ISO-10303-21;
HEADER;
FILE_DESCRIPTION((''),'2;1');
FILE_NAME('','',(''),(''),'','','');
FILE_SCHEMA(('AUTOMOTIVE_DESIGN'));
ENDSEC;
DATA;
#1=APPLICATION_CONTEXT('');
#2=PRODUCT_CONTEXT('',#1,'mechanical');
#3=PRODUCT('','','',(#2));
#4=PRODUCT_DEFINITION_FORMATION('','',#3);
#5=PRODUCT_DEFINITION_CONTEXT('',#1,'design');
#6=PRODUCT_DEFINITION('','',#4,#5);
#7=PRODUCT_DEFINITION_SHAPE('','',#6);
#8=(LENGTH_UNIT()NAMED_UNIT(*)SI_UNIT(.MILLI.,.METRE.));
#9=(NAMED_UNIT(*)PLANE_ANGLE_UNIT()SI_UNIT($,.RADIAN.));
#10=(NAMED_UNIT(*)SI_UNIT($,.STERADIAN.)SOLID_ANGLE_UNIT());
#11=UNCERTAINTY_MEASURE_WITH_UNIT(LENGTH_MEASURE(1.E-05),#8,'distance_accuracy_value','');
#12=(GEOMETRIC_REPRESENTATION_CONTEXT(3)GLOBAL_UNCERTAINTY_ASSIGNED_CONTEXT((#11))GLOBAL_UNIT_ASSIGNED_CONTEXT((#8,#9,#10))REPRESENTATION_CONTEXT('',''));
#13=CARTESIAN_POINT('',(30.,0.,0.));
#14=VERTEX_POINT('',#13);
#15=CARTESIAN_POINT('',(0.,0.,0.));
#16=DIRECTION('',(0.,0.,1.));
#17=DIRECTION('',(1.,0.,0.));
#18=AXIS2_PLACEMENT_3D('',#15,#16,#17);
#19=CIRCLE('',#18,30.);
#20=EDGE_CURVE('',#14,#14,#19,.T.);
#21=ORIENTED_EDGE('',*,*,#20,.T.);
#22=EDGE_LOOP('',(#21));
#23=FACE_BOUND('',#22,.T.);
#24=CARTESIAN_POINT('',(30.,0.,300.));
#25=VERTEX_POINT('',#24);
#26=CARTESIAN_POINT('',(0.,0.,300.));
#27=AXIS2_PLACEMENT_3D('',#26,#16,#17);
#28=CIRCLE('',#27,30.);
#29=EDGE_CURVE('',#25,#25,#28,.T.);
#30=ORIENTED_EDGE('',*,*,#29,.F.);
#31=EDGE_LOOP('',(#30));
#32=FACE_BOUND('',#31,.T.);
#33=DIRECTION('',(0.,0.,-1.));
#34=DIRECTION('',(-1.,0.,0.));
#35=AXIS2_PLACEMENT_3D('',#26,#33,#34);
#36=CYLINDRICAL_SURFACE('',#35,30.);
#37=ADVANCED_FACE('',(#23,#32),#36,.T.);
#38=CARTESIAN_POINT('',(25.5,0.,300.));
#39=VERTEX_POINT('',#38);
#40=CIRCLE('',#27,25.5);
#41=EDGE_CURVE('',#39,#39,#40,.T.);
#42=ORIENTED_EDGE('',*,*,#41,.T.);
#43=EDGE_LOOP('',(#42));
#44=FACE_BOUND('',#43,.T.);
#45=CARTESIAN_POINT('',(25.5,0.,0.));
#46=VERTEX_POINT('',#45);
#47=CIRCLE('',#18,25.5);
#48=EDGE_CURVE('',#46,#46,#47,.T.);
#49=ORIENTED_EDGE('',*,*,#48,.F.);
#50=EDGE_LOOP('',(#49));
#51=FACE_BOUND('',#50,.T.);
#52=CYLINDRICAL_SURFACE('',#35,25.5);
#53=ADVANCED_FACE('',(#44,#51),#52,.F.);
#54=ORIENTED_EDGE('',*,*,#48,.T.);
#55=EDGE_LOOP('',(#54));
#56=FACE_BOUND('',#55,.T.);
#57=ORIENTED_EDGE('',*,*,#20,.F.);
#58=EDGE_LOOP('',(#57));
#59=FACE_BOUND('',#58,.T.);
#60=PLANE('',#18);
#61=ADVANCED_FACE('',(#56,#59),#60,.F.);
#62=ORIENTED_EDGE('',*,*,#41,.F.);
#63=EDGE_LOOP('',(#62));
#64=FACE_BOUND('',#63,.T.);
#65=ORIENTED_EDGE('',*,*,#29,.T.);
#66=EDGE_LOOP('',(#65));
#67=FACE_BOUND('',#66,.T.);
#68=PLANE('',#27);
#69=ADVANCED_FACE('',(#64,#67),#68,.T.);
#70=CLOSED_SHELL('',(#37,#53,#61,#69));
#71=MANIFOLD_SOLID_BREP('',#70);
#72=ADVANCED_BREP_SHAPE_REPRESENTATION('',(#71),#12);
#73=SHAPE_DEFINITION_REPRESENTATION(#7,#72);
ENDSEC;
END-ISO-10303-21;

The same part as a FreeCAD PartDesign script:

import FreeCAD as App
import Part
import Sketcher

doc = App.newDocument("Part")
body = doc.addObject("PartDesign::Body", "Body")

# Sketch on XY plane
sketch1 = body.newObject("Sketcher::SketchObject", "Sketch")
sketch1.AttachmentSupport = (doc.getObject("XY_Plane"), [""])
sketch1.MapMode = "FlatFace"
sketch1.addGeometry(Part.Circle(App.Vector(0, 0, 0), App.Vector(0, 0, 1), 30), False)
sketch1.addGeometry(Part.Circle(App.Vector(0, 0, 0), App.Vector(0, 0, 1), 26), False)
sketch1.addConstraint(Sketcher.Constraint("Coincident", 0, 3, -1, 1))
sketch1.addConstraint(Sketcher.Constraint("Coincident", 1, 3, -1, 1))
sketch1.addConstraint(Sketcher.Constraint("Diameter", 0, 60.0))
sketch1.addConstraint(Sketcher.Constraint("Diameter", 1, 51.0))
pad1 = body.newObject("PartDesign::Pad", "Pad")
pad1.Profile = sketch1
pad1.Length = 300

doc.recompute()
